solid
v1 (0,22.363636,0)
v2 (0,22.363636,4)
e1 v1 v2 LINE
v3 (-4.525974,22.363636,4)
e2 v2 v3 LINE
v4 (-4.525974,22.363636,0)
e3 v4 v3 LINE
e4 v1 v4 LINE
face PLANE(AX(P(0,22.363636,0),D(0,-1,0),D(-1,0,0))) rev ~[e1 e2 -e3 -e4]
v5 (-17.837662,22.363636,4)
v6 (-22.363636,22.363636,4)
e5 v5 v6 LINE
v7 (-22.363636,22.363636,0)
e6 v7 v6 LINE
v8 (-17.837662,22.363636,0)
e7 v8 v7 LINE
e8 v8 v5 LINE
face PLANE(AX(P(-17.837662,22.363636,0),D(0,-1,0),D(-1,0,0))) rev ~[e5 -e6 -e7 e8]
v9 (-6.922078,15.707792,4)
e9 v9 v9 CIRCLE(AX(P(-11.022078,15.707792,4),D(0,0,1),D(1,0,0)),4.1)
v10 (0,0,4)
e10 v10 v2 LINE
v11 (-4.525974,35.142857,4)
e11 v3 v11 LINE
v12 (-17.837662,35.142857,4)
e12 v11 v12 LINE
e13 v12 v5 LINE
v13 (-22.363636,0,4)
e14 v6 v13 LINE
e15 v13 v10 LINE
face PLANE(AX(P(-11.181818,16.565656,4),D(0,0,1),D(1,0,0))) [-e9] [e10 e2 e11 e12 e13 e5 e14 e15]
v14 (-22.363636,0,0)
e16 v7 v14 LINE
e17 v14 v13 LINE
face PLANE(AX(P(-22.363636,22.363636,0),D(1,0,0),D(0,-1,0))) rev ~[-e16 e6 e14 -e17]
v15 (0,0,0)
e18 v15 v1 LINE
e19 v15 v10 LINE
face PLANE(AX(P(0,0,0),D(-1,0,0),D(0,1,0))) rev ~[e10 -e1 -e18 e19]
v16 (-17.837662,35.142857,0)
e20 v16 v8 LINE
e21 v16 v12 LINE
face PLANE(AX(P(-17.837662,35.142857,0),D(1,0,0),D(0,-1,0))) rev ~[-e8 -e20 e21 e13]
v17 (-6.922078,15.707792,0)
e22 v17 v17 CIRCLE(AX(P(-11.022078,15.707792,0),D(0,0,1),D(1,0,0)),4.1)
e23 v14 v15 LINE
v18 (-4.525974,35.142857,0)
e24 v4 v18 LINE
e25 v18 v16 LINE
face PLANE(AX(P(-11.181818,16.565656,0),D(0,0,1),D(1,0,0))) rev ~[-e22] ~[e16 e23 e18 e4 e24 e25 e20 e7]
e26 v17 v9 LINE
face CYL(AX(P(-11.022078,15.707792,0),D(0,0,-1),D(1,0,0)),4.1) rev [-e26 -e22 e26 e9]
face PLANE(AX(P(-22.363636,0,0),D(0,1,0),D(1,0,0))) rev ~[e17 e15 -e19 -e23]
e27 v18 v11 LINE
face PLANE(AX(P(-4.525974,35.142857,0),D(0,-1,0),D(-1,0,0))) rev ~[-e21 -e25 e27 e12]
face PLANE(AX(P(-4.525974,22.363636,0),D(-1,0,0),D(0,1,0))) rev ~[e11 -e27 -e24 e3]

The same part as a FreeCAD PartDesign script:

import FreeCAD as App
import Part
import Sketcher
Q = App.Units.Quantity


def add_polygon(sketch, points):
    """Adds a closed chain of lines whose ends are joined by coincident constraints."""
    first, n = sketch.GeometryCount, len(points)
    for a, b in zip(points, points[1:] + points[:1]):
        sketch.addGeometry(Part.LineSegment(App.Vector(*a, 0), App.Vector(*b, 0)), False)
    for i in range(n):
        sketch.addConstraint(Sketcher.Constraint("Coincident", first + i, 2, first + (i + 1) % n, 1))

doc = App.newDocument("Part")
body = doc.addObject("PartDesign::Body", "Body")

# Sketch on XY plane
sketch1 = body.newObject("Sketcher::SketchObject", "Sketch")
sketch1.AttachmentSupport = (doc.getObject("XY_Plane"), [""])
sketch1.MapMode = "FlatFace"
add_polygon(sketch1, [(-22.4, 0), (0, 0), (0, 22.4), (-4.5, 22.4), (-4.5, 35.1), (-17.8, 35.1), (-17.8, 22.4), (-22.4, 22.4)])  # lines 0-7
sketch1.addGeometry(Part.Circle(App.Vector(-11, 15.7, 0), App.Vector(0, 0, 1), 4.1), False)  # 8
sketch1.addConstraint([
    Sketcher.Constraint("Horizontal", 0),
    Sketcher.Constraint("Vertical", 1),
    Sketcher.Constraint("Horizontal", 2),
    Sketcher.Constraint("Vertical", 3),
    Sketcher.Constraint("Horizontal", 4),
    Sketcher.Constraint("Vertical", 5),
    Sketcher.Constraint("Horizontal", 6),
    Sketcher.Constraint("Vertical", 7),
    Sketcher.Constraint("Coincident", 0, 2, -1, 1),
    Sketcher.Constraint("Horizontal", 2, 2, 5, 2),
    Sketcher.Constraint("Equal", 2, 6),
    Sketcher.Constraint("Equal", 0, 1),
    Sketcher.Constraint("Diameter", 8, Q("8.2 mm")),
    Sketcher.Constraint("DistanceX", 4, 2, 4, 1, Q("13.311688 mm")),
    Sketcher.Constraint("DistanceY", 3, 1, 3, 2, Q("12.779221 mm")),
    Sketcher.Constraint("DistanceX", 0, 1, 0, 2, Q("22.363636 mm")),
    Sketcher.Constraint("DistanceX", 8, 3, -1, 1, Q("11.022078 mm")),
    Sketcher.Constraint("DistanceY", -1, 1, 8, 3, Q("15.707792 mm")),
])
pad1 = body.newObject("PartDesign::Pad", "Pad")
pad1.Profile = sketch1
pad1.Length = 4

doc.recompute()
